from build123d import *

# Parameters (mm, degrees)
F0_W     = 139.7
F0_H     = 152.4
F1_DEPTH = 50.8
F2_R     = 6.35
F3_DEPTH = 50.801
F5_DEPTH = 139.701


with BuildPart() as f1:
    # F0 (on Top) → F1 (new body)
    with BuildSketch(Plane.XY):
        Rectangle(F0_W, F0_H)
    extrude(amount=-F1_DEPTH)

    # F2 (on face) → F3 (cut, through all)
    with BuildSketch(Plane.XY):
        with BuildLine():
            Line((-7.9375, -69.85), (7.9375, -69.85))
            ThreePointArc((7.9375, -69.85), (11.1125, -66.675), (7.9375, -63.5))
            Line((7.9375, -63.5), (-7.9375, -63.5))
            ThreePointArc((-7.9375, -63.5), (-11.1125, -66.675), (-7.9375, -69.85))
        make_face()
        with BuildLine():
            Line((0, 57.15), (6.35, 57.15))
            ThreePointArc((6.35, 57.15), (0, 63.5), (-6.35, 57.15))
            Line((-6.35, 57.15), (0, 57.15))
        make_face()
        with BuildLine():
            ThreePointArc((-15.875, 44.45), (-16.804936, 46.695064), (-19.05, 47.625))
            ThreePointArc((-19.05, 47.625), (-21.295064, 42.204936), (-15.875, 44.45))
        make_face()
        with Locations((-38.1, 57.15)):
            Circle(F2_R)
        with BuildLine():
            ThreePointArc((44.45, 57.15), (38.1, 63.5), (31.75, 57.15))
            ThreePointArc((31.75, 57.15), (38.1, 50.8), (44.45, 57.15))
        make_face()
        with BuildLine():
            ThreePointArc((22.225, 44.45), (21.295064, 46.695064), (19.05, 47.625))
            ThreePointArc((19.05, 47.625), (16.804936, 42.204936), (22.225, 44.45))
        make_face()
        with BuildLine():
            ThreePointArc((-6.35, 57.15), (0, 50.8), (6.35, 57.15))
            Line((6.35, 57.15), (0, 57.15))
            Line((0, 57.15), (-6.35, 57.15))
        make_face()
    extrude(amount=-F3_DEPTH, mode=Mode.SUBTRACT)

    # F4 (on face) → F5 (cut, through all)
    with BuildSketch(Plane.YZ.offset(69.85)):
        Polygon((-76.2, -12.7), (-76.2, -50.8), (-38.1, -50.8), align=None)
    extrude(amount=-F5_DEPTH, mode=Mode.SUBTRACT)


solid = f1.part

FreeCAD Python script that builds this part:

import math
import FreeCAD as App
import Part
import Sketcher
Q = App.Units.Quantity


def add_polygon(sketch, points):
    """Adds a closed chain of lines whose ends are joined by coincident constraints."""
    first, n = sketch.GeometryCount, len(points)
    for a, b in zip(points, points[1:] + points[:1]):
        sketch.addGeometry(Part.LineSegment(App.Vector(*a, 0), App.Vector(*b, 0)), False)
    for i in range(n):
        sketch.addConstraint(Sketcher.Constraint("Coincident", first + i, 2, first + (i + 1) % n, 1))

doc = App.newDocument("Part")
body = doc.addObject("PartDesign::Body", "Body")

sketch1 = body.newObject("Sketcher::SketchObject", "Sketch")
sketch1.AttachmentSupport = (doc.getObject("XY_Plane"), [""])
sketch1.MapMode = "FlatFace"
add_polygon(sketch1, [(-70, 76), (-70, -76), (70, -76), (70, 76)])
sketch1.addConstraint(Sketcher.Constraint("Vertical", 0))
sketch1.addConstraint(Sketcher.Constraint("Horizontal", 1))
sketch1.addConstraint(Sketcher.Constraint("Vertical", 2))
sketch1.addConstraint(Sketcher.Constraint("Horizontal", 3))
sketch1.addConstraint(Sketcher.Constraint("Symmetric", 0, 2, 2, 2, -1, 1))
sketch1.addConstraint(Sketcher.Constraint("DistanceY", 0, 2, 0, 1, Q("6 in")))
sketch1.addConstraint(Sketcher.Constraint("DistanceX", 1, 1, 1, 2, Q("5.5 in")))
pad1 = body.newObject("PartDesign::Pad", "Pad")
pad1.Profile = sketch1
pad1.Length = Q("2 in")
pad1.Reversed = True

sketch2 = body.newObject("Sketcher::SketchObject", "Sketch001")
sketch2.AttachmentSupport = (doc.getObject("XY_Plane"), [""])
sketch2.MapMode = "FlatFace"
sketch2.addGeometry(Part.LineSegment(App.Vector(-7.9, -69.8, 0), App.Vector(7.9, -69.8, 0)), False)
sketch2.addGeometry(Part.ArcOfCircle(Part.Circle(App.Vector(7.9, -66.7, 0), App.Vector(0, 0, 1), 3.2), math.radians(-90), math.radians(90)), False)
sketch2.addGeometry(Part.LineSegment(App.Vector(7.9, -63.5, 0), App.Vector(-7.9, -63.5, 0)), False)
sketch2.addGeometry(Part.ArcOfCircle(Part.Circle(App.Vector(-7.9, -66.7, 0), App.Vector(0, 0, 1), 3.2), math.radians(90), math.radians(270)), False)
sketch2.addGeometry(Part.Circle(App.Vector(0, 57.1, 0), App.Vector(0, 0, 1), 6.3), False)
sketch2.addGeometry(Part.ArcOfCircle(Part.Circle(App.Vector(-19.1, 44.4, 0), App.Vector(0, 0, 1), 3.2), math.radians(0), math.radians(90)), False)
sketch2.addGeometry(Part.ArcOfCircle(Part.Circle(App.Vector(-19, 44.5, 0), App.Vector(0, 0, 1), 3.2), math.radians(90), math.radians(360)), False)
sketch2.addGeometry(Part.Circle(App.Vector(-38.1, 57.1, 0), App.Vector(0, 0, 1), 6.3), False)
sketch2.addGeometry(Part.Circle(App.Vector(38.1, 57.1, 0), App.Vector(0, 0, 1), 6.3), False)
sketch2.addGeometry(Part.ArcOfCircle(Part.Circle(App.Vector(19, 44.4, 0), App.Vector(0, 0, 1), 3.2), math.radians(0), math.radians(90)), False)
sketch2.addGeometry(Part.ArcOfCircle(Part.Circle(App.Vector(19.1, 44.5, 0), App.Vector(0, 0, 1), 3.2), math.radians(90), math.radians(360)), False)
sketch2.addConstraint(Sketcher.Constraint("Tangent", 0, 2, 1, 1))
sketch2.addConstraint(Sketcher.Constraint("Tangent", 1, 2, 2, 1))
sketch2.addConstraint(Sketcher.Constraint("Tangent", 2, 2, 3, 1))
sketch2.addConstraint(Sketcher.Constraint("Tangent", 3, 2, 0, 1))
sketch2.addConstraint(Sketcher.Constraint("Tangent", 5, 1, 6, 2))
sketch2.addConstraint(Sketcher.Constraint("Coincident", 6, 1, 5, 2))
sketch2.addConstraint(Sketcher.Constraint("Tangent", 9, 1, 10, 2))
sketch2.addConstraint(Sketcher.Constraint("Coincident", 10, 1, 9, 2))
sketch2.addConstraint(Sketcher.Constraint("Horizontal", 0))
sketch2.addConstraint(Sketcher.Constraint("Horizontal", 2))
sketch2.addConstraint(Sketcher.Constraint("Equal", 3, 5))
sketch2.addConstraint(Sketcher.Constraint("Equal", 4, 7))
sketch2.addConstraint(Sketcher.Constraint("Equal", 7, 8))
sketch2.addConstraint(Sketcher.Constraint("Equal", 6, 9))
sketch2.addConstraint(Sketcher.Constraint("Symmetric", 7, 3, 8, 3, -2))
sketch2.addConstraint(Sketcher.Constraint("Symmetric", 5, 3, 9, 3, -2))
sketch2.addConstraint(Sketcher.Constraint("PointOnObject", 4, 3, -2))
sketch2.addConstraint(Sketcher.Constraint("Horizontal", 4, 3, 7, 3))
sketch2.addConstraint(Sketcher.Constraint("Horizontal", 10, 3, 5, 1))
sketch2.addConstraint(Sketcher.Constraint("Horizontal", 5, 1, 9, 1))
sketch2.addConstraint(Sketcher.Constraint("Vertical", 5, 3, 6, 1))
sketch2.addConstraint(Sketcher.Constraint("Vertical", 9, 3, 10, 1))
sketch2.addConstraint(Sketcher.Constraint("Diameter", 4, Q("0.5 in")))
sketch2.addConstraint(Sketcher.Constraint("Radius", 1, Q("0.125 in")))
sketch2.addConstraint(Sketcher.Constraint("DistanceX", 7, 3, 8, 3, Q("3 in")))
sketch2.addConstraint(Sketcher.Constraint("DistanceY", 1, 2, -1, 1, Q("2.5 in")))
sketch2.addConstraint(Sketcher.Constraint("DistanceY", 5, 3, 4, 3, Q("0.5 in")))
sketch2.addConstraint(Sketcher.Constraint("DistanceX", 6, 3, 9, 3, Q("1.5 in")))
sketch2.addConstraint(Sketcher.Constraint("DistanceY", 0, 2, 9, 3, Q("4.5 in")))
sketch2.addConstraint(Sketcher.Constraint("DistanceX", 0, 1, 0, 2, Q("0.625 in")))
sketch2.addConstraint(Sketcher.Constraint("DistanceX", -1, 1, 1, 3, Q("0.3125 in")))
pocket1 = body.newObject("PartDesign::Pocket", "Pocket")
pocket1.Profile = sketch2
pocket1.Type = "ThroughAll"

sketch3 = body.newObject("Sketcher::SketchObject", "Sketch002")
sketch3.AttachmentSupport = (doc.getObject("YZ_Plane"), [""])
sketch3.MapMode = "FlatFace"
sketch3.AttachmentOffset = App.Placement(App.Vector(0, 0, 2.75 * 25.4), App.Rotation())
add_polygon(sketch3, [(-76, -13), (-76, -51), (-38, -51)])
sketch3.addConstraint(Sketcher.Constraint("Vertical", 0))
sketch3.addConstraint(Sketcher.Constraint("Horizontal", 1))
sketch3.addConstraint(Sketcher.Constraint("Equal", 1, 0))
sketch3.addConstraint(Sketcher.Constraint("DistanceX", 1, 1, 1, 2, Q("1.5 in")))
sketch3.addConstraint(Sketcher.Constraint("DistanceX", 0, 2, -1, 1, Q("3 in")))
sketch3.addConstraint(Sketcher.Constraint("DistanceY", 0, 2, -1, 1, Q("2 in")))
pocket2 = body.newObject("PartDesign::Pocket", "Pocket001")
pocket2.Profile = sketch3
pocket2.Type = "ThroughAll"

doc.recompute()
